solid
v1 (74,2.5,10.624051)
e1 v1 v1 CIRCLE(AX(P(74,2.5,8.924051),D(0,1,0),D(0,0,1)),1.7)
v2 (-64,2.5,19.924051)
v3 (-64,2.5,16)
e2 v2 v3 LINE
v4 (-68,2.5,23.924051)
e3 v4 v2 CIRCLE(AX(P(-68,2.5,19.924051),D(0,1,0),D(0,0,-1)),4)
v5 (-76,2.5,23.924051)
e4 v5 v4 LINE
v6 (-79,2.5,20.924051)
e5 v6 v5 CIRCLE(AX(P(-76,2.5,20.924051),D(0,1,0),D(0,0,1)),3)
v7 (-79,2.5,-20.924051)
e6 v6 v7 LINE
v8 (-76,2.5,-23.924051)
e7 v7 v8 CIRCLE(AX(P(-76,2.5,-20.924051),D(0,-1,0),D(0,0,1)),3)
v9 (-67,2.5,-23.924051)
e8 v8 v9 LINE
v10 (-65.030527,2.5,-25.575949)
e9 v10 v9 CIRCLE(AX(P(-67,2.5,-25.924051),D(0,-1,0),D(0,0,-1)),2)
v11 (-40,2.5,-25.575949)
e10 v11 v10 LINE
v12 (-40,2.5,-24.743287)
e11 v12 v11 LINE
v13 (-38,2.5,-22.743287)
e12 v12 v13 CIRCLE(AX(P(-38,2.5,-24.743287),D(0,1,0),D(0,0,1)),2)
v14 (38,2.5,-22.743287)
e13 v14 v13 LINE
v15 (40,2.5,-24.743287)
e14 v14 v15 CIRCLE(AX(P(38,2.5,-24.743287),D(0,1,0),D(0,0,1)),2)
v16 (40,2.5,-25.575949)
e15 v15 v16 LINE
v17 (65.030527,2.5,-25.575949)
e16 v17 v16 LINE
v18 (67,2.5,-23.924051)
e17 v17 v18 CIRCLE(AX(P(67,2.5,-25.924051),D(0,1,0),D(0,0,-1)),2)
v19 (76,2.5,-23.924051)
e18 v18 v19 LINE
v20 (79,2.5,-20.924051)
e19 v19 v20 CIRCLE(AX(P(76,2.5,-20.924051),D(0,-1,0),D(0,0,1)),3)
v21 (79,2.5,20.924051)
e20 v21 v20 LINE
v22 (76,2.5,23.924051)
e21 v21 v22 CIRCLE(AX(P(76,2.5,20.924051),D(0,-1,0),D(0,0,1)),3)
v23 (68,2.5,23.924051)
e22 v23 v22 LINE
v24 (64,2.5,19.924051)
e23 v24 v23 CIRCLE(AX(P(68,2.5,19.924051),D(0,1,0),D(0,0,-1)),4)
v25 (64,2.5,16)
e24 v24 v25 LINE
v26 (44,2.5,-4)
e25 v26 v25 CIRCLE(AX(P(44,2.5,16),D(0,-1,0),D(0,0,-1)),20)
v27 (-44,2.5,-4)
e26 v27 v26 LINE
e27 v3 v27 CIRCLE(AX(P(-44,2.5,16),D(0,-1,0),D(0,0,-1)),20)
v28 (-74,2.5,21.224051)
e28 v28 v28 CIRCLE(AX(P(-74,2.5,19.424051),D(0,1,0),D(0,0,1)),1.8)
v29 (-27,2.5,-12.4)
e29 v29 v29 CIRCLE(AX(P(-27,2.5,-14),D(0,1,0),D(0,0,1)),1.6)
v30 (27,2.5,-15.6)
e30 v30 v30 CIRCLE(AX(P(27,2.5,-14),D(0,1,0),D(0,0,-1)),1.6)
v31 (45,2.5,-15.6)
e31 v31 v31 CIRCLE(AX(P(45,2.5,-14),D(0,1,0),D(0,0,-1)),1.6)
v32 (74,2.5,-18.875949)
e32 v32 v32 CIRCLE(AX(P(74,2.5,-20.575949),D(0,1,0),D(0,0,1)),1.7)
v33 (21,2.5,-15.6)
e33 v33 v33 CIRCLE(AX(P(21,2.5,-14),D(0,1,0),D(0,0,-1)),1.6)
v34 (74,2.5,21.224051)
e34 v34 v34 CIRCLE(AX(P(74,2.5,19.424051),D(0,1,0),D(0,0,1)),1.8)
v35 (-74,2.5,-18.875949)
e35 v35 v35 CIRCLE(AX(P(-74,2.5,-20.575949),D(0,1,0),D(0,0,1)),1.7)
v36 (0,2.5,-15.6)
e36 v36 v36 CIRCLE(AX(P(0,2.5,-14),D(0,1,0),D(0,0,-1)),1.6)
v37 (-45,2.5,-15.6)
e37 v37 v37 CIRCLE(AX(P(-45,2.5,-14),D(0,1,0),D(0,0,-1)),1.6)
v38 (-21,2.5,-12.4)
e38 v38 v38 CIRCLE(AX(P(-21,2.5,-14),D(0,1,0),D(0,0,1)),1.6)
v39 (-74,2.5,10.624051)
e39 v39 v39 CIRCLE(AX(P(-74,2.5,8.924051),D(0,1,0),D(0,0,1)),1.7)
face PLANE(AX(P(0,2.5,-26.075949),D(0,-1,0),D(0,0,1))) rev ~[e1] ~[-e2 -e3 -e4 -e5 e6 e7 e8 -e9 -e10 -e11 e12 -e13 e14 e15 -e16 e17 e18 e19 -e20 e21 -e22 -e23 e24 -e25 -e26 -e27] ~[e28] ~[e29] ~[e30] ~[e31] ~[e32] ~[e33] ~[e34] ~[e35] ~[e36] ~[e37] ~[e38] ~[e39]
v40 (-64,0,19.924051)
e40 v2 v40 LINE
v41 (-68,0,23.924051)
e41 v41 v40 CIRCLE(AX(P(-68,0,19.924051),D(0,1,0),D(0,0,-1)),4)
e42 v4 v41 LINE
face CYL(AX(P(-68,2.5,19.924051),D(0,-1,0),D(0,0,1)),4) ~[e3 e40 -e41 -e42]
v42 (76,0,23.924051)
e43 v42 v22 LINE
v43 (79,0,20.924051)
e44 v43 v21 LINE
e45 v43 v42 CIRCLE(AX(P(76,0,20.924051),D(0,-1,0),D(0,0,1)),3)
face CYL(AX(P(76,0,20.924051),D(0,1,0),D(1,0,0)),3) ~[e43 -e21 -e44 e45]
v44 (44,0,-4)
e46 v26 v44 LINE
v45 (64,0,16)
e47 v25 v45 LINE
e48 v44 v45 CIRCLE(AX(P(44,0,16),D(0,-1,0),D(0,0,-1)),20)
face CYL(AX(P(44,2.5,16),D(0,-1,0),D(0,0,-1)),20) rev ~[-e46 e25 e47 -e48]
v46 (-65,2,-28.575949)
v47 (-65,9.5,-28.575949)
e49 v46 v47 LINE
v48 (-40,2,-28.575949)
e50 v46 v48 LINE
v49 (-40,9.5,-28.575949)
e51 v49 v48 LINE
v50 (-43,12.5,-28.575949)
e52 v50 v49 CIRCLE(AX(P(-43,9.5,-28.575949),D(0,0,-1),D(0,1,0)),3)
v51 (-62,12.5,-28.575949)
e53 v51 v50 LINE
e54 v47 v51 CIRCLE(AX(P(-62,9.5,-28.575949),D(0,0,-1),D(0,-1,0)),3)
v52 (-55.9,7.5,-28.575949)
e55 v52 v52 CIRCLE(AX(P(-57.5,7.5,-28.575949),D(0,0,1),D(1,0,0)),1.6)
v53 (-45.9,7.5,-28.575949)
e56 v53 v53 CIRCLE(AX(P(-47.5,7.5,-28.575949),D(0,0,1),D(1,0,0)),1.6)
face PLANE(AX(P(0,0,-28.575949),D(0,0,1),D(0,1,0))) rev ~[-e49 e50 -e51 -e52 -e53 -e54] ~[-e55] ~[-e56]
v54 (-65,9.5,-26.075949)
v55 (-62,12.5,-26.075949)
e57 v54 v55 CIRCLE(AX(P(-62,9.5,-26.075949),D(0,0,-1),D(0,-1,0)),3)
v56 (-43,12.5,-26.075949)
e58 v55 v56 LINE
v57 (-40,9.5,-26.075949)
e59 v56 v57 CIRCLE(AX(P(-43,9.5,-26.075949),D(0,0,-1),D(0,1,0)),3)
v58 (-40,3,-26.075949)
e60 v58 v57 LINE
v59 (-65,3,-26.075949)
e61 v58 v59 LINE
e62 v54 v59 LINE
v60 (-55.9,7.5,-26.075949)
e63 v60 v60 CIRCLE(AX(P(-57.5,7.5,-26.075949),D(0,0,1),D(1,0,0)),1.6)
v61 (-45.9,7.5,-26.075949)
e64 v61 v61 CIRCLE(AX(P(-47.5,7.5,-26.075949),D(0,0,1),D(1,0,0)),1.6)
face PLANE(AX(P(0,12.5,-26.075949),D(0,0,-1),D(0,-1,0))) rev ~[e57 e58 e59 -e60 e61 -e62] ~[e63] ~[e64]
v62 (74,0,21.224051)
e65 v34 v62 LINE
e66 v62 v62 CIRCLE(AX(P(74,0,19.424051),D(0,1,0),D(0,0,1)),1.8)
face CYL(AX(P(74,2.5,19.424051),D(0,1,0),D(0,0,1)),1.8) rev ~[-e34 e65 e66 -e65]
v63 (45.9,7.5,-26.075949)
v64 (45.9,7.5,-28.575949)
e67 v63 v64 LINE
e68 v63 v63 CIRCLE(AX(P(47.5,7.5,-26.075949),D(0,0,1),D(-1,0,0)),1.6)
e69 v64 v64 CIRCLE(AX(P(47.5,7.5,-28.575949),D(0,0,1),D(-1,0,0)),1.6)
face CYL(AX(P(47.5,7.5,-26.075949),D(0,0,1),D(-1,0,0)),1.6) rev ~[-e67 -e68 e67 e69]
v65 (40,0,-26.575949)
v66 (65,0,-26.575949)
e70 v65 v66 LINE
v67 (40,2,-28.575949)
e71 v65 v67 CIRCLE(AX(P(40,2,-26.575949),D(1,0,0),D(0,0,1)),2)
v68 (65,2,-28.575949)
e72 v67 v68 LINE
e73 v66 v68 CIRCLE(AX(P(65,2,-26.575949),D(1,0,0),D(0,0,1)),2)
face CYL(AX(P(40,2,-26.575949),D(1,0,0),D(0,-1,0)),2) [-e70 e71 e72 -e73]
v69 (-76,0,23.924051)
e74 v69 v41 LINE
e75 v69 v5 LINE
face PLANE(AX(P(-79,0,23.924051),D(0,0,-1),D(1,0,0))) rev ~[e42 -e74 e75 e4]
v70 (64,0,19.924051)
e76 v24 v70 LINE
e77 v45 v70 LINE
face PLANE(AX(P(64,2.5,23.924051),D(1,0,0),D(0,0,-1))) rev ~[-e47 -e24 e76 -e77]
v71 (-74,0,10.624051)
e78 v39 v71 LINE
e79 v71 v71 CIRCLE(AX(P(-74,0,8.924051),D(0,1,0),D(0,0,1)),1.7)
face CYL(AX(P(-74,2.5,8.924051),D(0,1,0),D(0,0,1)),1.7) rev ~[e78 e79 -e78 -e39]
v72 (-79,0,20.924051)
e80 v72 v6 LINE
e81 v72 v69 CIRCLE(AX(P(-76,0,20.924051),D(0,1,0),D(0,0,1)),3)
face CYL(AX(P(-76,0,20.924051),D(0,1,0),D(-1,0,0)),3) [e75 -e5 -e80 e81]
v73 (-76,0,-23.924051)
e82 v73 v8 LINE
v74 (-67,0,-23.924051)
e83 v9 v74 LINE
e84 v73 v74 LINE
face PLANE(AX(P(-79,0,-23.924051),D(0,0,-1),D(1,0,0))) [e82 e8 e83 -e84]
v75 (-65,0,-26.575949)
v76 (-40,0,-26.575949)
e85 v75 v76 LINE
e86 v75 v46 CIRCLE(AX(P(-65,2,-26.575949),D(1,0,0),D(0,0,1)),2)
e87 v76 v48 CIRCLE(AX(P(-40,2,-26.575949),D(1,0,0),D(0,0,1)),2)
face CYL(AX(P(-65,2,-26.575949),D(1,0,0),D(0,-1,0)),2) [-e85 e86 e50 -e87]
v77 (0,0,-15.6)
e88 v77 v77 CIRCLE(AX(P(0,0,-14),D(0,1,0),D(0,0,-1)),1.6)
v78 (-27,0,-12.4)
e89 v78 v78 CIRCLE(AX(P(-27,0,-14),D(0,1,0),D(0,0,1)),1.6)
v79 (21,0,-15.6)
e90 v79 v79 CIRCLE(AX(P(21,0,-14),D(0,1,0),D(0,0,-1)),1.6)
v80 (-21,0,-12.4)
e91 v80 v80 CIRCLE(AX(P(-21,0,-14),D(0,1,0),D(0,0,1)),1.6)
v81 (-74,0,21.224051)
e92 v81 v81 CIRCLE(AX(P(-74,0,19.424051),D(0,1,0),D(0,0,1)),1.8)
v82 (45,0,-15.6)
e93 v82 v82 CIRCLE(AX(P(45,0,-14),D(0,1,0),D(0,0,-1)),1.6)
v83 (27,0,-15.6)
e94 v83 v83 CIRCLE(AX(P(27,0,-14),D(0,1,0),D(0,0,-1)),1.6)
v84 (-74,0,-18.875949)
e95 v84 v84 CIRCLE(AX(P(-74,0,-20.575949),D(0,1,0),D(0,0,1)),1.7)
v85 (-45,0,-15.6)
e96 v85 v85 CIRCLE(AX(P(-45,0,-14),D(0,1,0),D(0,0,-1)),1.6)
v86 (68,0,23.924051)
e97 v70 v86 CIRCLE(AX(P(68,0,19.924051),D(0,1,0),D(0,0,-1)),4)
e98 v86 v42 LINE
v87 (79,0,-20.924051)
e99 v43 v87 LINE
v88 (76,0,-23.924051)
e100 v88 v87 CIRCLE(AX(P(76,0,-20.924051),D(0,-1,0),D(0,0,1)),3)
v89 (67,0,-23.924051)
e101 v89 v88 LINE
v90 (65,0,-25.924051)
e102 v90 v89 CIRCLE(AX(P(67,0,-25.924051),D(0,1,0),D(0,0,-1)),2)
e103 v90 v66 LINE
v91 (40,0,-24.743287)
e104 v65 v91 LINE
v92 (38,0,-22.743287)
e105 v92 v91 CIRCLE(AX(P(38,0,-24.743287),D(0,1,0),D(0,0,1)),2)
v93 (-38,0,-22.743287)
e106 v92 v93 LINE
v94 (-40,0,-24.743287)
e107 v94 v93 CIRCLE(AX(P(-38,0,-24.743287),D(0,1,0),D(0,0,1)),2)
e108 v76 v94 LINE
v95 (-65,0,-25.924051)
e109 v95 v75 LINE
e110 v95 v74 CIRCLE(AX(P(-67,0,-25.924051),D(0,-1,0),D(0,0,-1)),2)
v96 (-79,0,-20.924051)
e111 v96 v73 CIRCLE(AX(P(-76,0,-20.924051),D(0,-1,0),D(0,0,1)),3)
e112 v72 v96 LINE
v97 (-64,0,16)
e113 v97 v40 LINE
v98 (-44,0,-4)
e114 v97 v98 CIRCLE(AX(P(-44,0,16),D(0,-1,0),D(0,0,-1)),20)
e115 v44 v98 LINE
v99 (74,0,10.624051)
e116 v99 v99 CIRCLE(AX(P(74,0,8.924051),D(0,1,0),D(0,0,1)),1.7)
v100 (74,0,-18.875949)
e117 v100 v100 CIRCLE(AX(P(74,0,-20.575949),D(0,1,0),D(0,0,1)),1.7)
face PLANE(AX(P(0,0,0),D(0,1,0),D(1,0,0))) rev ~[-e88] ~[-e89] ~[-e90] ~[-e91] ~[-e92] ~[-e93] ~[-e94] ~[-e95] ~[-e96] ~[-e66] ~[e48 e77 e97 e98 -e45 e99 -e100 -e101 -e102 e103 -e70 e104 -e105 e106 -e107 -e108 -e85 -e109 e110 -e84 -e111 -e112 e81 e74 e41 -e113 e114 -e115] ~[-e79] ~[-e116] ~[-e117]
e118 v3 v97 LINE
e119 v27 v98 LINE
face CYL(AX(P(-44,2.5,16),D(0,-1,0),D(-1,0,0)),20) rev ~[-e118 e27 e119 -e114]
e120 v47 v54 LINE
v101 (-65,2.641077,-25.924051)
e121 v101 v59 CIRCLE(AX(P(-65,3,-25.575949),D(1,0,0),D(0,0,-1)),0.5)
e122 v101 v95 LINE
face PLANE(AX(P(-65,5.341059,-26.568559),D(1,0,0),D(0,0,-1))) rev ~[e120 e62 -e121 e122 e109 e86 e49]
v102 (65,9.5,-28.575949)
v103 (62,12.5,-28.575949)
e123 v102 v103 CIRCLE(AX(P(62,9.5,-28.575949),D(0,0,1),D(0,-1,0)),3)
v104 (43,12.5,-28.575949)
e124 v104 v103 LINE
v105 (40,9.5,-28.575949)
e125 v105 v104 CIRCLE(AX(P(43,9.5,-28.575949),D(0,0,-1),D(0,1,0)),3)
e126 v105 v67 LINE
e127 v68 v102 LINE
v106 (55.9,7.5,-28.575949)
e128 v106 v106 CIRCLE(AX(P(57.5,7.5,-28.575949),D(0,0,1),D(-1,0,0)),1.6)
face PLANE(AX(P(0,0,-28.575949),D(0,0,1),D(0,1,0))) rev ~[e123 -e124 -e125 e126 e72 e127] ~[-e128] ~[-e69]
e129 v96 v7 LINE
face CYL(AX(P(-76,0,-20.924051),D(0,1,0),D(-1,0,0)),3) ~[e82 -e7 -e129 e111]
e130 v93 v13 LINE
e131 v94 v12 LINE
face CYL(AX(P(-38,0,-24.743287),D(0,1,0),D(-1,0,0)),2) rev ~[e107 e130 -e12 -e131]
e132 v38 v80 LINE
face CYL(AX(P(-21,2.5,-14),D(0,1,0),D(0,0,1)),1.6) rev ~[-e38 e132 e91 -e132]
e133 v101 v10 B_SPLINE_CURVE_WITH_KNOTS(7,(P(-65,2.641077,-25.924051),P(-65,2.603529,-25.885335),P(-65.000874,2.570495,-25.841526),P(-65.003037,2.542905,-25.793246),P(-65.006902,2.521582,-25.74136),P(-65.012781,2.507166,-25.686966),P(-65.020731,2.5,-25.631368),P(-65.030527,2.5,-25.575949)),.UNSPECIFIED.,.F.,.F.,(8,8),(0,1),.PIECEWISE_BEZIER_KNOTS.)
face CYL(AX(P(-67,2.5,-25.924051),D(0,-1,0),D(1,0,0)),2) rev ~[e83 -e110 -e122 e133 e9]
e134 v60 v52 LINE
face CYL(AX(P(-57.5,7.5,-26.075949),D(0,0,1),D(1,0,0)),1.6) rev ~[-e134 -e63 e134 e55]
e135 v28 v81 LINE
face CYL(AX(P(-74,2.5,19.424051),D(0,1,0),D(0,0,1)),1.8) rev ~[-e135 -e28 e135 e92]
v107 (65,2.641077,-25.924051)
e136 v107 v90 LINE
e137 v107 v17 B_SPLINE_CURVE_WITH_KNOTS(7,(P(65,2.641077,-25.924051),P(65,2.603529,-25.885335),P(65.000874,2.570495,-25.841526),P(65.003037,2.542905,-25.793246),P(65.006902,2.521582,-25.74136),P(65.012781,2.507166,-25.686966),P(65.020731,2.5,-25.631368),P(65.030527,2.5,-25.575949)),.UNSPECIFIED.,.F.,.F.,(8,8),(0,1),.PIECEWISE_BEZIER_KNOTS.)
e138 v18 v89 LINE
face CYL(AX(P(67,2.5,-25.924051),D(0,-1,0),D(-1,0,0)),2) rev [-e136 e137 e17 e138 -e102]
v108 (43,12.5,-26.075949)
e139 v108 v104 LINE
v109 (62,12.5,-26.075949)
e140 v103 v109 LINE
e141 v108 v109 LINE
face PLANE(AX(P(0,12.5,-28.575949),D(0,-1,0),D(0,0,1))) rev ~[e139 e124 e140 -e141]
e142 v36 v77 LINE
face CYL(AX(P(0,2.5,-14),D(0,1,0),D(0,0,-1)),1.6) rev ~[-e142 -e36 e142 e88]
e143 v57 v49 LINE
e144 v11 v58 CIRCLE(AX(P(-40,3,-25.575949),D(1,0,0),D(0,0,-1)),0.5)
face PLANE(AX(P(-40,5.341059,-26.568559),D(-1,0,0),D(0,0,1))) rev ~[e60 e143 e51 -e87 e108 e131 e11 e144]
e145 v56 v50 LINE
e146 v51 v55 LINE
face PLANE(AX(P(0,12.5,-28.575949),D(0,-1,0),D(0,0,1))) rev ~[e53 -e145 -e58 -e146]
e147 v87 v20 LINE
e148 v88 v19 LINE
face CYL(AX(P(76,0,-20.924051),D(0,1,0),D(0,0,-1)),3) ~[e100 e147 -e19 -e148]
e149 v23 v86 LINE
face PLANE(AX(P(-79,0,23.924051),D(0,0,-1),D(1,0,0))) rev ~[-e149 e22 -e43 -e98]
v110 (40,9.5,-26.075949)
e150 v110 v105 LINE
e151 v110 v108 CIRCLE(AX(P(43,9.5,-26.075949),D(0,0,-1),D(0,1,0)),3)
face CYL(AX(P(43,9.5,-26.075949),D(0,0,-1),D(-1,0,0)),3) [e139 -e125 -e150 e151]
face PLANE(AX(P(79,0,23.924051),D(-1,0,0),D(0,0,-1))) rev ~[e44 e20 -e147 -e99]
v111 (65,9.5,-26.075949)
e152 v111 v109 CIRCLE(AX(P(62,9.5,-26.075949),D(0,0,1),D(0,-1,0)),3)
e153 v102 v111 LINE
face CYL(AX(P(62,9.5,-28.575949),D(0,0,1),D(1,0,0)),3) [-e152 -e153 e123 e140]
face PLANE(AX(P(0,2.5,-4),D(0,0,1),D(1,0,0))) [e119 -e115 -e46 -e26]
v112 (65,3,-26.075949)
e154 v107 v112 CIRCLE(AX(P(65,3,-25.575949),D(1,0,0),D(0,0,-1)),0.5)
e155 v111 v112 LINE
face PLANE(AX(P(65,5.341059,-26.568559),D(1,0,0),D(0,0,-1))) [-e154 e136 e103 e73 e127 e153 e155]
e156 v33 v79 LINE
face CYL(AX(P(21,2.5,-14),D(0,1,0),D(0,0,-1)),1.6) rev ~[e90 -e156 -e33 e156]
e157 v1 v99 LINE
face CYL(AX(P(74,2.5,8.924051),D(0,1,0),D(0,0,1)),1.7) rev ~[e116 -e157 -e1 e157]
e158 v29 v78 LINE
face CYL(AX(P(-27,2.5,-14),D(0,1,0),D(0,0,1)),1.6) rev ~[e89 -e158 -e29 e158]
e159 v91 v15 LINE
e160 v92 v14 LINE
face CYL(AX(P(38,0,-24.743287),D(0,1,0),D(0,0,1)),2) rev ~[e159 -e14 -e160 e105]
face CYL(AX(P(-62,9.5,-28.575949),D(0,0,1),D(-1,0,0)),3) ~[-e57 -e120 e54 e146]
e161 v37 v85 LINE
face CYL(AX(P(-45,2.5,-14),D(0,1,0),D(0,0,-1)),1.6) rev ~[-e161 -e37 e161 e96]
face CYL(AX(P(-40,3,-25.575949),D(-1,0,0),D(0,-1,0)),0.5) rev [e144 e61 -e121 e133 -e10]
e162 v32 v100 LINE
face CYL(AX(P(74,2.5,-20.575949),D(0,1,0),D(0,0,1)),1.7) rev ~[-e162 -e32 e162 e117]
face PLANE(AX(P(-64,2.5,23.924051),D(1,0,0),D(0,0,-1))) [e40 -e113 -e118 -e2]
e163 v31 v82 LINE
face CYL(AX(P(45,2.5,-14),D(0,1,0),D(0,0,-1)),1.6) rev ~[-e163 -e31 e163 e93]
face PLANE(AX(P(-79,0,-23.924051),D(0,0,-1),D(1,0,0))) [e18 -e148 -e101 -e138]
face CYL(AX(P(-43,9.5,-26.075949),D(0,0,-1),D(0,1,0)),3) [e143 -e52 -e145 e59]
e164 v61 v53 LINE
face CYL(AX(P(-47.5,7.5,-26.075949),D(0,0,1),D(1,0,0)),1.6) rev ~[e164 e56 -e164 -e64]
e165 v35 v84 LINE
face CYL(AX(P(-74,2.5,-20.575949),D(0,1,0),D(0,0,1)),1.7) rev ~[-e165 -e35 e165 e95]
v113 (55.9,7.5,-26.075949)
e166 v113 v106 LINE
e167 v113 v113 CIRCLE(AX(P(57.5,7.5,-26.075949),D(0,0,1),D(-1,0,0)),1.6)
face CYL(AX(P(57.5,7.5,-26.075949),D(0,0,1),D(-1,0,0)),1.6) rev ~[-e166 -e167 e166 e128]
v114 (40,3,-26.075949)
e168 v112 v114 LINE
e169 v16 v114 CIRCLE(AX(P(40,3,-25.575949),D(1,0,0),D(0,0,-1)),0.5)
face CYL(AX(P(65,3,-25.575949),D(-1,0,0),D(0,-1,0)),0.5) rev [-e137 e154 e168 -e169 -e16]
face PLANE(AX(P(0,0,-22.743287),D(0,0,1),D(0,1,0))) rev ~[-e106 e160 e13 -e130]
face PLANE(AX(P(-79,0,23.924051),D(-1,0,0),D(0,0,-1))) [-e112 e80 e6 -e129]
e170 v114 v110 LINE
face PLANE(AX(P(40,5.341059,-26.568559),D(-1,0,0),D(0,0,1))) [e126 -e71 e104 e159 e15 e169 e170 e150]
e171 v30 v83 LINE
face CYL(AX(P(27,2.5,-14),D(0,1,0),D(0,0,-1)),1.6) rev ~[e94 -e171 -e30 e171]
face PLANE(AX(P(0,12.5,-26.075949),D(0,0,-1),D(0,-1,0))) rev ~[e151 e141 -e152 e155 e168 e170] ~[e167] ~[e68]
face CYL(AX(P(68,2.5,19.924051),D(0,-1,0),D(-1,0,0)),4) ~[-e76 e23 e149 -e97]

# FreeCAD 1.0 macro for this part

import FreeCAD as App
import Part
import Sketcher
from FreeCAD import Vector
Q = App.Units.Quantity


def edges_at(feature, points):
    """Names of the edges that pass closest to the given points."""
    edges = feature.Shape.Edges
    near = lambda p: min(range(len(edges)), key=lambda i: edges[i].distToShape(Part.Vertex(*p))[0])
    return sorted({f"Edge{near(p) + 1}" for p in points})


def add_polygon(sketch, points):
    """Adds a closed chain of lines whose ends are joined by coincident constraints."""
    first, n = sketch.GeometryCount, len(points)
    for a, b in zip(points, points[1:] + points[:1]):
        sketch.addGeometry(Part.LineSegment(App.Vector(*a, 0), App.Vector(*b, 0)), False)
    for i in range(n):
        sketch.addConstraint(Sketcher.Constraint("Coincident", first + i, 2, first + (i + 1) % n, 1))

doc = App.newDocument("Part")
params = doc.addObject("Spreadsheet::Sheet", "Params")
for row, (alias, value) in enumerate([
    ("sketch1_width", "158 mm"),
    ("pad1_length", "2.5 mm"),
    ("sketch2_width", "64 mm"),
    ("sketch3_width", "64 mm"),
    ("sketch4_diameter", "3.4 mm"),
    ("sketch5_diameter", "3.4 mm"),
    ("sketch6_diameter", "3.6 mm"),
    ("sketch7_diameter", "3.4 mm"),
    ("sketch8_diameter", "3.6 mm"),
    ("sketch9_diameter", "3.4 mm"),
    ("sketch10_diameter", "3.2 mm"),
    ("sketch11_diameter", "3.2 mm"),
    ("sketch12_diameter", "3.2 mm"),
    ("sketch13_diameter", "3.2 mm"),
    ("pocket12_length", "83.580931 mm"),
    ("fillet_radius", "3 mm"),
    ("fillet2_radius", "4 mm"),
    ("fillet3_radius", "20 mm"),
    ("sketch14_width", "10 mm"),
    ("sketch14_width2", "2.5 mm"),
    ("pad2_length", "130 mm"),
    ("sketch15_width", "10 mm"),
    ("sketch15_width2", "2.5 mm"),
    ("pocket13_length", "80 mm"),
    ("fillet4_radius", "0.5 mm"),
    ("fillet5_radius", "2 mm"),
    ("fillet6_radius", "3 mm"),
    ("fillet7_radius", "2 mm"),
    ("sketch16_diameter", "3.2 mm"),
    ("sketch17_diameter", "3.2 mm"),
], start=1):
    params.set(f"A{row}", alias)
    params.set(f"B{row}", "=" + value)
    params.setAlias(f"B{row}", alias)

body = doc.addObject("PartDesign::Body", "Body")

sketch1 = body.newObject("Sketcher::SketchObject", "Sketch")
sketch1.AttachmentSupport = (doc.getObject("XZ_Plane"), [""])
sketch1.MapMode = "FlatFace"
add_polygon(sketch1, [(-79, -24), (-79, 24), (79, 24), (79, -24)])
sketch1.addConstraint(Sketcher.Constraint("Vertical", 0))
sketch1.addConstraint(Sketcher.Constraint("Horizontal", 1))
sketch1.addConstraint(Sketcher.Constraint("Vertical", 2))
sketch1.addConstraint(Sketcher.Constraint("Horizontal", 3))
sketch1.addConstraint(Sketcher.Constraint("Symmetric", 0, 2, 2, 2, -1, 1))
sketch1.addConstraint(Sketcher.Constraint("DistanceX", 1, 1, 1, 2, Q("158 mm")))
sketch1.addConstraint(Sketcher.Constraint("DistanceY", 0, 1, 0, 2, Q("47.848101 mm")))
sketch1.setExpression("Constraints[9]", "Params.sketch1_width")
pad1 = body.newObject("PartDesign::Pad", "Pad")
pad1.Profile = sketch1
pad1.setExpression("Length", "Params.pad1_length")
pad1.Reversed = True

sketch2 = body.newObject("Sketcher::SketchObject", "Sketch001")
sketch2.AttachmentSupport = (doc.getObject("XZ_Plane"), [""])
sketch2.MapMode = "FlatFace"
sketch2.AttachmentOffset = App.Placement(Vector(0, 0, -2.5), App.Rotation())
add_polygon(sketch2, [(-64, -4), (-64, 24), (0, 24), (0, -4)])
sketch2.addConstraint(Sketcher.Constraint("Vertical", 0))
sketch2.addConstraint(Sketcher.Constraint("Horizontal", 1))
sketch2.addConstraint(Sketcher.Constraint("Vertical", 2))
sketch2.addConstraint(Sketcher.Constraint("Horizontal", 3))
sketch2.addConstraint(Sketcher.Constraint("PointOnObject", 1, 2, -2))
sketch2.addConstraint(Sketcher.Constraint("DistanceX", 1, 1, 1, 2, Q("64 mm")))
sketch2.addConstraint(Sketcher.Constraint("DistanceY", 2, 2, -1, 1, Q("4 mm")))
sketch2.addConstraint(Sketcher.Constraint("DistanceY", 0, 1, 0, 2, Q("27.924051 mm")))
sketch2.setExpression("Constraints[9]", "Params.sketch2_width")
pocket1 = body.newObject("PartDesign::Pocket", "Pocket")
pocket1.Profile = sketch2
pocket1.Type = "UpToFirst"
pocket1.Reversed = True

sketch3 = body.newObject("Sketcher::SketchObject", "Sketch002")
sketch3.AttachmentSupport = (doc.getObject("XZ_Plane"), [""])
sketch3.MapMode = "FlatFace"
sketch3.AttachmentOffset = App.Placement(Vector(0, 0, -2.5), App.Rotation())
add_polygon(sketch3, [(0, -4), (0, 24), (64, 24), (64, -4)])
sketch3.addConstraint(Sketcher.Constraint("Vertical", 0))
sketch3.addConstraint(Sketcher.Constraint("Horizontal", 1))
sketch3.addConstraint(Sketcher.Constraint("Vertical", 2))
sketch3.addConstraint(Sketcher.Constraint("Horizontal", 3))
sketch3.addConstraint(Sketcher.Constraint("PointOnObject", 0, 2, -2))
sketch3.addConstraint(Sketcher.Constraint("DistanceX", 1, 1, 1, 2, Q("64 mm")))
sketch3.addConstraint(Sketcher.Constraint("DistanceY", 2, 2, -1, 1, Q("4 mm")))
sketch3.addConstraint(Sketcher.Constraint("DistanceY", 0, 1, 0, 2, Q("27.924051 mm")))
sketch3.setExpression("Constraints[9]", "Params.sketch3_width")
pocket2 = body.newObject("PartDesign::Pocket", "Pocket001")
pocket2.Profile = sketch3
pocket2.Type = "UpToFirst"
pocket2.Reversed = True

sketch4 = body.newObject("Sketcher::SketchObject", "Sketch003")
sketch4.AttachmentSupport = (doc.getObject("XZ_Plane"), [""])
sketch4.MapMode = "FlatFace"
sketch4.AttachmentOffset = App.Placement(Vector(0, 0, -2.5), App.Rotation())
sketch4.addGeometry(Part.Circle(Vector(-74, 8.9, 0), Vector(0, 0, 1), 1.7), False)
sketch4.addConstraint(Sketcher.Constraint("Diameter", 0, Q("3.4 mm")))
sketch4.addConstraint(Sketcher.Constraint("DistanceX", 0, 3, -1, 1, Q("74 mm")))
sketch4.addConstraint(Sketcher.Constraint("DistanceY", -1, 1, 0, 3, Q("8.924051 mm")))
sketch4.setExpression("Constraints[0]", "Params.sketch4_diameter")
pocket3 = body.newObject("PartDesign::Pocket", "Pocket002")
pocket3.Profile = sketch4
pocket3.Type = "UpToFirst"
pocket3.Reversed = True

sketch5 = body.newObject("Sketcher::SketchObject", "Sketch004")
sketch5.AttachmentSupport = (doc.getObject("XZ_Plane"), [""])
sketch5.MapMode = "FlatFace"
sketch5.AttachmentOffset = App.Placement(Vector(0, 0, -2.5), App.Rotation())
sketch5.addGeometry(Part.Circle(Vector(-74, -20.6, 0), Vector(0, 0, 1), 1.7), False)
sketch5.addConstraint(Sketcher.Constraint("Diameter", 0, Q("3.4 mm")))
sketch5.addConstraint(Sketcher.Constraint("DistanceX", 0, 3, -1, 1, Q("74 mm")))
sketch5.addConstraint(Sketcher.Constraint("DistanceY", 0, 3, -1, 1, Q("20.575949 mm")))
sketch5.setExpression("Constraints[0]", "Params.sketch5_diameter")
pocket4 = body.newObject("PartDesign::Pocket", "Pocket003")
pocket4.Profile = sketch5
pocket4.Type = "UpToFirst"
pocket4.Reversed = True

sketch6 = body.newObject("Sketcher::SketchObject", "Sketch005")
sketch6.AttachmentSupport = (doc.getObject("XZ_Plane"), [""])
sketch6.MapMode = "FlatFace"
sketch6.AttachmentOffset = App.Placement(Vector(0, 0, -2.5), App.Rotation())
sketch6.addGeometry(Part.Circle(Vector(-74, 19.4, 0), Vector(0, 0, 1), 1.8), False)
sketch6.addConstraint(Sketcher.Constraint("Diameter", 0, Q("3.6 mm")))
sketch6.addConstraint(Sketcher.Constraint("DistanceX", 0, 3, -1, 1, Q("74 mm")))
sketch6.addConstraint(Sketcher.Constraint("DistanceY", -1, 1, 0, 3, Q("19.424051 mm")))
sketch6.setExpression("Constraints[0]", "Params.sketch6_diameter")
pocket5 = body.newObject("PartDesign::Pocket", "Pocket004")
pocket5.Profile = sketch6
pocket5.Type = "UpToFirst"
pocket5.Reversed = True

sketch7 = body.newObject("Sketcher::SketchObject", "Sketch006")
sketch7.AttachmentSupport = (doc.getObject("XZ_Plane"), [""])
sketch7.MapMode = "FlatFace"
sketch7.AttachmentOffset = App.Placement(Vector(0, 0, -2.5), App.Rotation())
sketch7.addGeometry(Part.Circle(Vector(74, -20.6, 0), Vector(0, 0, 1), 1.7), False)
sketch7.addConstraint(Sketcher.Constraint("Diameter", 0, Q("3.4 mm")))
sketch7.addConstraint(Sketcher.Constraint("DistanceX", -1, 1, 0, 3, Q("74 mm")))
sketch7.addConstraint(Sketcher.Constraint("DistanceY", 0, 3, -1, 1, Q("20.575949 mm")))
sketch7.setExpression("Constraints[0]", "Params.sketch7_diameter")
pocket6 = body.newObject("PartDesign::Pocket", "Pocket005")
pocket6.Profile = sketch7
pocket6.Type = "UpToFirst"
pocket6.Reversed = True

sketch8 = body.newObject("Sketcher::SketchObject", "Sketch007")
sketch8.AttachmentSupport = (doc.getObject("XZ_Plane"), [""])
sketch8.MapMode = "FlatFace"
sketch8.AttachmentOffset = App.Placement(Vector(0, 0, -2.5), App.Rotation())
sketch8.addGeometry(Part.Circle(Vector(74, 19.4, 0), Vector(0, 0, 1), 1.8), False)
sketch8.addConstraint(Sketcher.Constraint("Diameter", 0, Q("3.6 mm")))
sketch8.addConstraint(Sketcher.Constraint("DistanceX", -1, 1, 0, 3, Q("74 mm")))
sketch8.addConstraint(Sketcher.Constraint("DistanceY", -1, 1, 0, 3, Q("19.424051 mm")))
sketch8.setExpression("Constraints[0]", "Params.sketch8_diameter")
pocket7 = body.newObject("PartDesign::Pocket", "Pocket006")
pocket7.Profile = sketch8
pocket7.Type = "UpToFirst"
pocket7.Reversed = True

sketch9 = body.newObject("Sketcher::SketchObject", "Sketch008")
sketch9.AttachmentSupport = (doc.getObject("XZ_Plane"), [""])
sketch9.MapMode = "FlatFace"
sketch9.AttachmentOffset = App.Placement(Vector(0, 0, -2.5), App.Rotation())
sketch9.addGeometry(Part.Circle(Vector(74, 8.9, 0), Vector(0, 0, 1), 1.7), False)
sketch9.addConstraint(Sketcher.Constraint("Diameter", 0, Q("3.4 mm")))
sketch9.addConstraint(Sketcher.Constraint("DistanceX", -1, 1, 0, 3, Q("74 mm")))
sketch9.addConstraint(Sketcher.Constraint("DistanceY", -1, 1, 0, 3, Q("8.924051 mm")))
sketch9.setExpression("Constraints[0]", "Params.sketch9_diameter")
pocket8 = body.newObject("PartDesign::Pocket", "Pocket007")
pocket8.Profile = sketch9
pocket8.Type = "UpToFirst"
pocket8.Reversed = True

sketch10 = body.newObject("Sketcher::SketchObject", "Sketch009")
sketch10.AttachmentSupport = (doc.getObject("XZ_Plane"), [""])
sketch10.MapMode = "FlatFace"
sketch10.AttachmentOffset = App.Placement(Vector(0, 0, -2.5), App.Rotation())
sketch10.addGeometry(Part.Circle(Vector(0, -14, 0), Vector(0, 0, 1), 1.6), False)
sketch10.addConstraint(Sketcher.Constraint("PointOnObject", 0, 3, -2))
sketch10.addConstraint(Sketcher.Constraint("Diameter", 0, Q("3.2 mm")))
sketch10.addConstraint(Sketcher.Constraint("DistanceY", 0, 3, -1, 1, Q("14 mm")))
sketch10.setExpression("Constraints[1]", "Params.sketch10_diameter")
pocket9 = body.newObject("PartDesign::Pocket", "Pocket008")
pocket9.Profile = sketch10
pocket9.Type = "UpToFirst"
pocket9.Reversed = True

sketch11 = body.newObject("Sketcher::SketchObject", "Sketch010")
sketch11.AttachmentSupport = (doc.getObject("XZ_Plane"), [""])
sketch11.MapMode = "FlatFace"
sketch11.AttachmentOffset = App.Placement(Vector(0, 0, -2.5), App.Rotation())
sketch11.addGeometry(Part.Circle(Vector(-45, -14, 0), Vector(0, 0, 1), 1.6), False)
sketch11.addConstraint(Sketcher.Constraint("Diameter", 0, Q("3.2 mm")))
sketch11.addConstraint(Sketcher.Constraint("DistanceX", 0, 3, -1, 1, Q("45 mm")))
sketch11.addConstraint(Sketcher.Constraint("DistanceY", 0, 3, -1, 1, Q("14 mm")))
sketch11.setExpression("Constraints[0]", "Params.sketch11_diameter")
pocket10 = body.newObject("PartDesign::Pocket", "Pocket009")
pocket10.Profile = sketch11
pocket10.Type = "UpToFirst"
pocket10.Reversed = True

sketch12 = body.newObject("Sketcher::SketchObject", "Sketch011")
sketch12.AttachmentSupport = (doc.getObject("XZ_Plane"), [""])
sketch12.MapMode = "FlatFace"
sketch12.AttachmentOffset = App.Placement(Vector(0, 0, -2.5), App.Rotation())
sketch12.addGeometry(Part.Circle(Vector(45, -14, 0), Vector(0, 0, 1), 1.6), False)
sketch12.addConstraint(Sketcher.Constraint("Diameter", 0, Q("3.2 mm")))
sketch12.addConstraint(Sketcher.Constraint("DistanceX", -1, 1, 0, 3, Q("45 mm")))
sketch12.addConstraint(Sketcher.Constraint("DistanceY", 0, 3, -1, 1, Q("14 mm")))
sketch12.setExpression("Constraints[0]", "Params.sketch12_diameter")
pocket11 = body.newObject("PartDesign::Pocket", "Pocket010")
pocket11.Profile = sketch12
pocket11.Type = "UpToFirst"
pocket11.Reversed = True

sketch13 = body.newObject("Sketcher::SketchObject", "Sketch012")
sketch13.AttachmentSupport = (doc.getObject("XZ_Plane"), [""])
sketch13.MapMode = "FlatFace"
sketch13.AttachmentOffset = App.Placement(Vector(0, 0, -2.5), App.Rotation())
sketch13.addGeometry(Part.Circle(Vector(0, -14, 0), Vector(0, 0, 1), 1.6), False)
sketch13.addGeometry(Part.Circle(Vector(-45, -14, 0), Vector(0, 0, 1), 1.6), False)
sketch13.addGeometry(Part.Circle(Vector(45, -14, 0), Vector(0, 0, 1), 1.6), False)
sketch13.addConstraint(Sketcher.Constraint("Equal", 0, 1))
sketch13.addConstraint(Sketcher.Constraint("Equal", 1, 2))
sketch13.addConstraint(Sketcher.Constraint("Symmetric", 1, 3, 2, 3, -2))
sketch13.addConstraint(Sketcher.Constraint("PointOnObject", 0, 3, -2))
sketch13.addConstraint(Sketcher.Constraint("Horizontal", 0, 3, 1, 3))
sketch13.addConstraint(Sketcher.Constraint("Diameter", 0, Q("3.2 mm")))
sketch13.addConstraint(Sketcher.Constraint("DistanceY", 0, 3, -1, 1, Q("14 mm")))
sketch13.addConstraint(Sketcher.Constraint("DistanceX", 1, 3, -1, 1, Q("45 mm")))
sketch13.setExpression("Constraints[5]", "Params.sketch13_diameter")
pocket12 = body.newObject("PartDesign::Pocket", "Pocket011")
pocket12.Profile = sketch13
pocket12.setExpression("Length", "Params.pocket12_length")
doc.recompute()

fillet = body.newObject("PartDesign::Fillet", "Fillet")
fillet.Base = (pocket12, edges_at(pocket12, [
    (79, 1.25, 23.924),
    (-79, 1.25, 23.924),
    (-79, 1.25, -23.924),
    (79, 1.25, -23.924),
]))
fillet.setExpression("Radius", "Params.fillet_radius")
doc.recompute()

fillet2 = body.newObject("PartDesign::Fillet", "Fillet001")
fillet2.Base = (fillet, edges_at(fillet, [(64, 1.25, 23.924), (-64, 1.25, 23.924)]))
fillet2.setExpression("Radius", "Params.fillet2_radius")
doc.recompute()

fillet3 = body.newObject("PartDesign::Fillet", "Fillet002")
fillet3.Base = (fillet2, edges_at(fillet2, [(-64, 1.25, -4), (64, 1.25, -4)]))
fillet3.setExpression("Radius", "Params.fillet3_radius")

sketch14 = body.newObject("Sketcher::SketchObject", "Sketch013")
sketch14.AttachmentSupport = (doc.getObject("YZ_Plane"), [""])
sketch14.MapMode = "FlatFace"
add_polygon(sketch14, [(0, -28.6), (0, -22.7), (2.5, -22.7), (2.5, -26.1), (12.5, -26.1), (12.5, -28.6)])
sketch14.addConstraint(Sketcher.Constraint("Vertical", 0))
sketch14.addConstraint(Sketcher.Constraint("Horizontal", 1))
sketch14.addConstraint(Sketcher.Constraint("Vertical", 2))
sketch14.addConstraint(Sketcher.Constraint("Horizontal", 3))
sketch14.addConstraint(Sketcher.Constraint("Vertical", 4))
sketch14.addConstraint(Sketcher.Constraint("Horizontal", 5))
sketch14.addConstraint(Sketcher.Constraint("PointOnObject", 0, 2, -2))
sketch14.addConstraint(Sketcher.Constraint("Equal", 1, 4))
sketch14.addConstraint(Sketcher.Constraint("DistanceX", 3, 1, 3, 2, Q("10 mm")))
sketch14.addConstraint(Sketcher.Constraint("DistanceX", 1, 1, 1, 2, Q("2.5 mm")))
sketch14.addConstraint(Sketcher.Constraint("DistanceY", 0, 1, 0, 2, Q("5.832663 mm")))
sketch14.addConstraint(Sketcher.Constraint("DistanceY", 2, 2, -1, 1, Q("26.075949 mm")))
sketch14.setExpression("Constraints[14]", "Params.sketch14_width")
sketch14.setExpression("Constraints[15]", "Params.sketch14_width2")
pad2 = body.newObject("PartDesign::Pad", "Pad001")
pad2.Profile = sketch14
pad2.setExpression("Length", "Params.pad2_length")
pad2.Midplane = True

sketch15 = body.newObject("Sketcher::SketchObject", "Sketch014")
sketch15.AttachmentSupport = (doc.getObject("YZ_Plane"), [""])
sketch15.MapMode = "FlatFace"
add_polygon(sketch15, [(0, -28.6), (0, -22.7), (2.5, -22.7), (2.5, -26.1), (12.5, -26.1), (12.5, -28.6)])
sketch15.addConstraint(Sketcher.Constraint("Vertical", 0))
sketch15.addConstraint(Sketcher.Constraint("Horizontal", 1))
sketch15.addConstraint(Sketcher.Constraint("Vertical", 2))
sketch15.addConstraint(Sketcher.Constraint("Horizontal", 3))
sketch15.addConstraint(Sketcher.Constraint("Vertical", 4))
sketch15.addConstraint(Sketcher.Constraint("Horizontal", 5))
sketch15.addConstraint(Sketcher.Constraint("PointOnObject", 0, 2, -2))
sketch15.addConstraint(Sketcher.Constraint("Equal", 1, 4))
sketch15.addConstraint(Sketcher.Constraint("DistanceX", 3, 1, 3, 2, Q("10 mm")))
sketch15.addConstraint(Sketcher.Constraint("DistanceX", 1, 1, 1, 2, Q("2.5 mm")))
sketch15.addConstraint(Sketcher.Constraint("DistanceY", 0, 1, 0, 2, Q("5.832663 mm")))
sketch15.addConstraint(Sketcher.Constraint("DistanceY", 2, 2, -1, 1, Q("26.075949 mm")))
sketch15.setExpression("Constraints[14]", "Params.sketch15_width")
sketch15.setExpression("Constraints[15]", "Params.sketch15_width2")
pocket13 = body.newObject("PartDesign::Pocket", "Pocket012")
pocket13.Profile = sketch15
pocket13.setExpression("Length", "Params.pocket13_length")
pocket13.Midplane = True
doc.recompute()

fillet4 = body.newObject("PartDesign::Fillet", "Fillet003")
fillet4.Base = (pocket13, edges_at(pocket13, [(52.5, 2.5, -26.076), (-52.5, 2.5, -26.076)]))
fillet4.setExpression("Radius", "Params.fillet4_radius")
doc.recompute()

fillet5 = body.newObject("PartDesign::Fillet", "Fillet004")
fillet5.Base = (fillet4, edges_at(fillet4, [(52.5, 0, -28.576), (-52.5, 0, -28.576)]))
fillet5.setExpression("Radius", "Params.fillet5_radius")
doc.recompute()

fillet6 = body.newObject("PartDesign::Fillet", "Fillet005")
fillet6.Base = (fillet5, edges_at(fillet5, [
    (-65, 12.5, -27.326),
    (65, 12.5, -27.326),
    (40, 12.5, -27.326),
    (-40, 12.5, -27.326),
]))
fillet6.setExpression("Radius", "Params.fillet6_radius")
doc.recompute()

fillet7 = body.newObject("PartDesign::Fillet", "Fillet006")
fillet7.Base = (fillet6, edges_at(fillet6, [
    (-65, 1.25, -23.924),
    (-40, 1.25, -22.743),
    (65, 1.25, -23.924),
    (40, 1.25, -22.743),
]))
fillet7.setExpression("Radius", "Params.fillet7_radius")

sketch16 = body.newObject("Sketcher::SketchObject", "Sketch015")
sketch16.AttachmentSupport = (doc.getObject("XY_Plane"), [""])
sketch16.MapMode = "FlatFace"
sketch16.AttachmentOffset = App.Placement(Vector(0, 0, -26.075949), App.Rotation())
sketch16.addGeometry(Part.Circle(Vector(-57.5, 7.5, 0), Vector(0, 0, 1), 1.6), False)
sketch16.addGeometry(Part.Circle(Vector(-47.5, 7.5, 0), Vector(0, 0, 1), 1.6), False)
sketch16.addGeometry(Part.Circle(Vector(47.5, 7.5, 0), Vector(0, 0, 1), 1.6), False)
sketch16.addGeometry(Part.Circle(Vector(57.5, 7.5, 0), Vector(0, 0, 1), 1.6), False)
sketch16.addConstraint(Sketcher.Constraint("Equal", 0, 1))
sketch16.addConstraint(Sketcher.Constraint("Equal", 1, 2))
sketch16.addConstraint(Sketcher.Constraint("Equal", 2, 3))
sketch16.addConstraint(Sketcher.Constraint("Symmetric", 1, 3, 2, 3, -2))
sketch16.addConstraint(Sketcher.Constraint("Symmetric", 0, 3, 3, 3, -2))
sketch16.addConstraint(Sketcher.Constraint("Horizontal", 0, 3, 1, 3))
sketch16.addConstraint(Sketcher.Constraint("Diameter", 0, Q("3.2 mm")))
sketch16.addConstraint(Sketcher.Constraint("DistanceX", 0, 3, 1, 3, Q("10 mm")))
sketch16.addConstraint(Sketcher.Constraint("DistanceX", 1, 3, 2, 3, Q("95 mm")))
sketch16.addConstraint(Sketcher.Constraint("DistanceY", -1, 1, 0, 3, Q("7.5 mm")))
sketch16.setExpression("Constraints[6]", "Params.sketch16_diameter")
pocket14 = body.newObject("PartDesign::Pocket", "Pocket013")
pocket14.Profile = sketch16
pocket14.Type = "ThroughAll"

sketch17 = body.newObject("Sketcher::SketchObject", "Sketch016")
sketch17.AttachmentSupport = (doc.getObject("XZ_Plane"), [""])
sketch17.MapMode = "FlatFace"
sketch17.AttachmentOffset = App.Placement(Vector(0, 0, -2.5), App.Rotation())
sketch17.addGeometry(Part.Circle(Vector(-27, -14, 0), Vector(0, 0, 1), 1.6), False)
sketch17.addGeometry(Part.Circle(Vector(-21, -14, 0), Vector(0, 0, 1), 1.6), False)
sketch17.addGeometry(Part.Circle(Vector(21, -14, 0), Vector(0, 0, 1), 1.6), False)
sketch17.addGeometry(Part.Circle(Vector(27, -14, 0), Vector(0, 0, 1), 1.6), False)
sketch17.addConstraint(Sketcher.Constraint("Equal", 0, 1))
sketch17.addConstraint(Sketcher.Constraint("Equal", 1, 2))
sketch17.addConstraint(Sketcher.Constraint("Equal", 2, 3))
sketch17.addConstraint(Sketcher.Constraint("Symmetric", 1, 3, 2, 3, -2))
sketch17.addConstraint(Sketcher.Constraint("Symmetric", 0, 3, 3, 3, -2))
sketch17.addConstraint(Sketcher.Constraint("Horizontal", 0, 3, 1, 3))
sketch17.addConstraint(Sketcher.Constraint("Diameter", 0, Q("3.2 mm")))
sketch17.addConstraint(Sketcher.Constraint("DistanceX", 0, 3, -1, 1, Q("27 mm")))
sketch17.addConstraint(Sketcher.Constraint("DistanceY", 0, 3, -1, 1, Q("14 mm")))
sketch17.addConstraint(Sketcher.Constraint("DistanceX", 1, 3, -1, 1, Q("21 mm")))
sketch17.setExpression("Constraints[6]", "Params.sketch17_diameter")
pocket15 = body.newObject("PartDesign::Pocket", "Pocket014")
pocket15.Profile = sketch17
pocket15.Type = "ThroughAll"
pocket15.Reversed = True

doc.recompute()
